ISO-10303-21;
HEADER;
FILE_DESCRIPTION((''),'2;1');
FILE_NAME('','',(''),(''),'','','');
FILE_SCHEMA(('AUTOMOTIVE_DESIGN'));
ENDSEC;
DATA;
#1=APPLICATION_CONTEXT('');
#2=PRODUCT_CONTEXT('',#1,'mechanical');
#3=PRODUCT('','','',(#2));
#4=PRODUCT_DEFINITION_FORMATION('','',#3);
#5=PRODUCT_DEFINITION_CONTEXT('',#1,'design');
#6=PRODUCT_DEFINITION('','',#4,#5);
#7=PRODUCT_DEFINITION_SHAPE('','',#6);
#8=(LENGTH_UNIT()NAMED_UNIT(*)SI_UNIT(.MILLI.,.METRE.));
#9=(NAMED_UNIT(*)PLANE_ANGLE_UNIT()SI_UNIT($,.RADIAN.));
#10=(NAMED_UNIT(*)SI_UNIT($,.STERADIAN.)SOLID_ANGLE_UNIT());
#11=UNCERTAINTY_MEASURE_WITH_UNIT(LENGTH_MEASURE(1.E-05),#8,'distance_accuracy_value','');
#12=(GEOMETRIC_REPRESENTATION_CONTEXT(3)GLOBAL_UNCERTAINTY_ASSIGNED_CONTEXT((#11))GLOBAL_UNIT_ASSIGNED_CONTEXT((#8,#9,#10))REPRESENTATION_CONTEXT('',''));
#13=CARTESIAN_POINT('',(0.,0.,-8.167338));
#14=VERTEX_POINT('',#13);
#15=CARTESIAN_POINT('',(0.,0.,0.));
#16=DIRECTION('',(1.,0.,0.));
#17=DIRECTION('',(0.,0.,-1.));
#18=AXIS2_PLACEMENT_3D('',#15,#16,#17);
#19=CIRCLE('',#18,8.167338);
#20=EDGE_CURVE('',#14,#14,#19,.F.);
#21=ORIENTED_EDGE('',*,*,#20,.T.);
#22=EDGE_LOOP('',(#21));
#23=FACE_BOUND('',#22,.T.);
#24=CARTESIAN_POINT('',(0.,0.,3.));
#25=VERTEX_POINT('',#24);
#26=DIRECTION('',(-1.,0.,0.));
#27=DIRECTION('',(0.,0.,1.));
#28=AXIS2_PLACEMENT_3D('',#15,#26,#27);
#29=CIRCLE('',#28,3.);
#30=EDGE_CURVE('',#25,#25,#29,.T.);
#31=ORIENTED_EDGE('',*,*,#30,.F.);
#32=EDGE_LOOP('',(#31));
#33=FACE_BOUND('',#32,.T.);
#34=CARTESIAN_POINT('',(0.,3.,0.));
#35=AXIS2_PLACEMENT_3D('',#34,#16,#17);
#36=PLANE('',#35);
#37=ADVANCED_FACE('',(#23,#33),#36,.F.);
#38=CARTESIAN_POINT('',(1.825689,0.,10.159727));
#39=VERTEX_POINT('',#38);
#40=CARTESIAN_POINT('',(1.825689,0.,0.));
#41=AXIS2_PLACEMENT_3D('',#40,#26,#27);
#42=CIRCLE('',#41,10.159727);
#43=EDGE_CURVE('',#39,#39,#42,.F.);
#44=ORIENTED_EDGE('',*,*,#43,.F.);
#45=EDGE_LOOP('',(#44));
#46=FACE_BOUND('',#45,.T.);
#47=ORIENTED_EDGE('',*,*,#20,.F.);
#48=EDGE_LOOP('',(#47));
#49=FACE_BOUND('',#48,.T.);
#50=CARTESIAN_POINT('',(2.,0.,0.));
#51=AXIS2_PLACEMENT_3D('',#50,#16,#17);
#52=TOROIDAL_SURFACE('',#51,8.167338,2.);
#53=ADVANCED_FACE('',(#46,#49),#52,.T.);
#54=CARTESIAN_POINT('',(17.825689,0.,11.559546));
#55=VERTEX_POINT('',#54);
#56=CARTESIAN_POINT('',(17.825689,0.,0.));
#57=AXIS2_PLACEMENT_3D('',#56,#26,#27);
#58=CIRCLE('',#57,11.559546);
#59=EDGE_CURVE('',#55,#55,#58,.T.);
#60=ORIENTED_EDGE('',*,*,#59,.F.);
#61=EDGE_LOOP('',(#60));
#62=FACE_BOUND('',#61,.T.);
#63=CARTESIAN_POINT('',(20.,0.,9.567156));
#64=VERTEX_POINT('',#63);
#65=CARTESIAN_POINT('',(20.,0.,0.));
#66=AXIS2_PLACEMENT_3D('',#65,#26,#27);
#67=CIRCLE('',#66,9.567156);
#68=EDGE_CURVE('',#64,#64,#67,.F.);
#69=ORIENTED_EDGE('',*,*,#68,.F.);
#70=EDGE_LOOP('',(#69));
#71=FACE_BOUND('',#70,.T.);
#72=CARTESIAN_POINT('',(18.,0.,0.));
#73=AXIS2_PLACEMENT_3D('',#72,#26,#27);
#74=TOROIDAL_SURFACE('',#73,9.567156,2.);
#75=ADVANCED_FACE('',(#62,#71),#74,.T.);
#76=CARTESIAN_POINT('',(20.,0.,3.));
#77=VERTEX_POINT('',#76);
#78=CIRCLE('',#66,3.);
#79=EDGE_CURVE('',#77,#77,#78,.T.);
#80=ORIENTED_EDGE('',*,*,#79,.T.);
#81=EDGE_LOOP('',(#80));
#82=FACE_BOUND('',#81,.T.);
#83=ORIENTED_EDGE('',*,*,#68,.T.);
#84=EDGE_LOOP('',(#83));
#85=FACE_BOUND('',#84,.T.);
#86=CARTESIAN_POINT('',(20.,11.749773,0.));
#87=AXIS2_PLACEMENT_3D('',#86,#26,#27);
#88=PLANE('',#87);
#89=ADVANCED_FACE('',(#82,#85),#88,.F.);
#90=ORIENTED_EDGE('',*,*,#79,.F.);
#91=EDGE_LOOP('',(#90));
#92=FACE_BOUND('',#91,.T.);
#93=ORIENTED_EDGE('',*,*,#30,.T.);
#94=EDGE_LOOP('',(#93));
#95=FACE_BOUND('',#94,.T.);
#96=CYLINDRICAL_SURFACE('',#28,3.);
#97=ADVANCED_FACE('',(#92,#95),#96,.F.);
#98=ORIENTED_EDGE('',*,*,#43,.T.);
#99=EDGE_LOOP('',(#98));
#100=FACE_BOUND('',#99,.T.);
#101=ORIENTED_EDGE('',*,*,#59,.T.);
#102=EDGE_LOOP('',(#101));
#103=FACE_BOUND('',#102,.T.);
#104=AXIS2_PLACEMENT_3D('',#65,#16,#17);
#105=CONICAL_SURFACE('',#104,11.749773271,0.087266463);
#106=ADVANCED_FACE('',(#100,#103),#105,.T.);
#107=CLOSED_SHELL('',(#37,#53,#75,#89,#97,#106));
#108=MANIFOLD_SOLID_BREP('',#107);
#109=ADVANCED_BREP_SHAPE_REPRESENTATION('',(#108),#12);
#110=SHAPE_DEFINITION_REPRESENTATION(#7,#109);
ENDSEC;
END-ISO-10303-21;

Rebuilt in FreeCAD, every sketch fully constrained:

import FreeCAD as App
import Part
import Sketcher

V = App.Vector
Q = App.Units.Quantity


def edges_at(feature, points):
    """Names of the edges that pass closest to the given points."""
    edges = feature.Shape.Edges
    near = lambda p: min(range(len(edges)), key=lambda i: edges[i].distToShape(Part.Vertex(*p))[0])
    return sorted({f"Edge{near(p) + 1}" for p in points})

doc = App.newDocument("Part")
params = doc.addObject("Spreadsheet::Sheet", "Params")
for row, (alias, value) in enumerate([
    ("sketch1_width", "20 mm"),
    ("sketch1_height", "7 mm"),
    ("revolution_angle", "360 deg"),
    ("fillet_radius", "2 mm"),
], start=1):
    params.set(f"A{row}", alias)
    params.set(f"B{row}", "=" + value)
    params.setAlias(f"B{row}", alias)

body = doc.addObject("PartDesign::Body", "Body")

sketch1 = doc.addObject("Sketcher::SketchObject", "Sketch")
body.addObject(sketch1)
sketch1.AttachmentSupport = (doc.XY_Plane, [""])
sketch1.MapMode = "FlatFace"
sketch1.addGeometry([
    Part.LineSegment(V(0, 10, 0), V(0, 3, 0)),
    Part.LineSegment(V(0, 3, 0), V(20, 3, 0)),
    Part.LineSegment(V(20, 3, 0), V(20, 12, 0)),
    Part.LineSegment(V(20, 12, 0), V(0, 10, 0)),
], False)
sketch1.addConstraint([
    Sketcher.Constraint("Coincident", 0, 2, 1, 1),
    Sketcher.Constraint("Coincident", 1, 2, 2, 1),
    Sketcher.Constraint("Coincident", 2, 2, 3, 1),
    Sketcher.Constraint("Coincident", 3, 2, 0, 1),
    Sketcher.Constraint("Vertical", 0),
    Sketcher.Constraint("Horizontal", 1),
    Sketcher.Constraint("Vertical", 2),
    Sketcher.Constraint("PointOnObject", 0, 2, -2),
    Sketcher.Constraint("DistanceX", 1, 1, 1, 2, Q("20 mm")),
    Sketcher.Constraint("DistanceY", 0, 2, 0, 1, Q("7 mm")),
    Sketcher.Constraint("Angle", 3, Q("-175 deg")),
    Sketcher.Constraint("DistanceY", -1, 1, 0, 2, Q("3 mm")),
])
sketch1.setExpression("Constraints[8]", "Params.sketch1_width")
sketch1.setExpression("Constraints[9]", "Params.sketch1_height")
revolution = doc.addObject("PartDesign::Revolution", "Revolution")
body.addObject(revolution)
revolution.Profile = sketch1
revolution.ReferenceAxis = (sketch1, ["H_Axis"])
revolution.setExpression("Angle", "Params.revolution_angle")
doc.recompute()

fillet = doc.addObject("PartDesign::Fillet", "Fillet")
body.addObject(fillet)
fillet.Base = (revolution, edges_at(revolution, [(20, 0, -11.75), (0, 0, -10)]))
fillet.setExpression("Radius", "Params.fillet_radius")

doc.recompute()
